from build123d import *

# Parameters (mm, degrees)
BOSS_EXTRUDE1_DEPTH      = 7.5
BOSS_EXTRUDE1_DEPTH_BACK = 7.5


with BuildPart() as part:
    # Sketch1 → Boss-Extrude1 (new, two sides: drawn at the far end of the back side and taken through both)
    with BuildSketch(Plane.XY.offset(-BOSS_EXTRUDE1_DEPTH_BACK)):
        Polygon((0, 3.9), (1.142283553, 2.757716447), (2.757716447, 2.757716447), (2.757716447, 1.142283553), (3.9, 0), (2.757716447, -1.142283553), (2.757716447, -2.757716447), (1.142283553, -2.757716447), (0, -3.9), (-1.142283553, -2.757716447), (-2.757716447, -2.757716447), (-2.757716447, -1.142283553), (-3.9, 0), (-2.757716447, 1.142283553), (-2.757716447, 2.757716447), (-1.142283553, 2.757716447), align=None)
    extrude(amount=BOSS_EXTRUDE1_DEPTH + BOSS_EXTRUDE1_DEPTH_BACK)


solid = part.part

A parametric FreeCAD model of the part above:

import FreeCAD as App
import Part
import Sketcher

V = App.Vector
Q = App.Units.Quantity


def add_polygon(sketch, points):
    """Adds a closed chain of lines whose ends are joined by coincident constraints."""
    first, n = sketch.GeometryCount, len(points)
    for a, b in zip(points, points[1:] + points[:1]):
        sketch.addGeometry(Part.LineSegment(App.Vector(*a, 0), App.Vector(*b, 0)), False)
    for i in range(n):
        sketch.addConstraint(Sketcher.Constraint("Coincident", first + i, 2, first + (i + 1) % n, 1))

doc = App.newDocument("Part")
body = doc.addObject("PartDesign::Body", "Body")

sketch1 = body.newObject("Sketcher::SketchObject", "Sketch")
sketch1.AttachmentSupport = (doc.getObject("XY_Plane"), [""])
sketch1.MapMode = "FlatFace"
add_polygon(sketch1, [(1.1, 2.8), (0, 3.9), (-1.1, 2.8), (-2.8, 2.8), (-2.8, 1.1), (-3.9, 0), (-2.8, -1.1), (-2.8, -2.8), (-1.1, -2.8), (0, -3.9), (1.1, -2.8), (2.8, -2.8), (2.8, -1.1), (3.9, 0), (2.8, 1.1), (2.8, 2.8)])
sketch1.addConstraint([
    Sketcher.Constraint("Horizontal", 2),
    Sketcher.Constraint("Vertical", 3),
    Sketcher.Constraint("Vertical", 6),
    Sketcher.Constraint("Horizontal", 7),
    Sketcher.Constraint("Horizontal", 10),
    Sketcher.Constraint("Vertical", 11),
    Sketcher.Constraint("Vertical", 14),
    Sketcher.Constraint("Horizontal", 15),
    Sketcher.Constraint("Symmetric", 0, 2, 8, 2, -1, 1),
    Sketcher.Constraint("Symmetric", 1, 2, 9, 2, -1, 1),
    Sketcher.Constraint("Symmetric", 3, 2, 11, 2, -1, 1),
    Sketcher.Constraint("Symmetric", 4, 2, 12, 2, -1, 1),
    Sketcher.Constraint("Symmetric", 5, 2, 13, 2, -1, 1),
    Sketcher.Constraint("Symmetric", 7, 2, 15, 2, -1, 1),
    Sketcher.Constraint("Symmetric", 7, 2, 9, 2, -2),
    Sketcher.Constraint("Symmetric", 5, 2, 11, 2, -2),
    Sketcher.Constraint("PointOnObject", 0, 2, -2),
    Sketcher.Constraint("PointOnObject", 4, 2, -1),
    Sketcher.Constraint("Perpendicular", 0, 1),
    Sketcher.Constraint("Parallel", 1, 4),
    Sketcher.Constraint("Equal", 15, 3),
    Sketcher.Constraint("Equal", 1, 4),
    Sketcher.Constraint("DistanceY", -1, 1, 0, 2, Q("3.9 mm")),
    Sketcher.Constraint("DistanceX", 2, 2, 2, 1, Q("1.615433 mm")),
])
pad1 = body.newObject("PartDesign::Pad", "Pad")
pad1.Profile = sketch1
pad1.Type = "TwoLengths"
pad1.Length = 7.5
pad1.Length2 = 7.5

doc.recompute()
